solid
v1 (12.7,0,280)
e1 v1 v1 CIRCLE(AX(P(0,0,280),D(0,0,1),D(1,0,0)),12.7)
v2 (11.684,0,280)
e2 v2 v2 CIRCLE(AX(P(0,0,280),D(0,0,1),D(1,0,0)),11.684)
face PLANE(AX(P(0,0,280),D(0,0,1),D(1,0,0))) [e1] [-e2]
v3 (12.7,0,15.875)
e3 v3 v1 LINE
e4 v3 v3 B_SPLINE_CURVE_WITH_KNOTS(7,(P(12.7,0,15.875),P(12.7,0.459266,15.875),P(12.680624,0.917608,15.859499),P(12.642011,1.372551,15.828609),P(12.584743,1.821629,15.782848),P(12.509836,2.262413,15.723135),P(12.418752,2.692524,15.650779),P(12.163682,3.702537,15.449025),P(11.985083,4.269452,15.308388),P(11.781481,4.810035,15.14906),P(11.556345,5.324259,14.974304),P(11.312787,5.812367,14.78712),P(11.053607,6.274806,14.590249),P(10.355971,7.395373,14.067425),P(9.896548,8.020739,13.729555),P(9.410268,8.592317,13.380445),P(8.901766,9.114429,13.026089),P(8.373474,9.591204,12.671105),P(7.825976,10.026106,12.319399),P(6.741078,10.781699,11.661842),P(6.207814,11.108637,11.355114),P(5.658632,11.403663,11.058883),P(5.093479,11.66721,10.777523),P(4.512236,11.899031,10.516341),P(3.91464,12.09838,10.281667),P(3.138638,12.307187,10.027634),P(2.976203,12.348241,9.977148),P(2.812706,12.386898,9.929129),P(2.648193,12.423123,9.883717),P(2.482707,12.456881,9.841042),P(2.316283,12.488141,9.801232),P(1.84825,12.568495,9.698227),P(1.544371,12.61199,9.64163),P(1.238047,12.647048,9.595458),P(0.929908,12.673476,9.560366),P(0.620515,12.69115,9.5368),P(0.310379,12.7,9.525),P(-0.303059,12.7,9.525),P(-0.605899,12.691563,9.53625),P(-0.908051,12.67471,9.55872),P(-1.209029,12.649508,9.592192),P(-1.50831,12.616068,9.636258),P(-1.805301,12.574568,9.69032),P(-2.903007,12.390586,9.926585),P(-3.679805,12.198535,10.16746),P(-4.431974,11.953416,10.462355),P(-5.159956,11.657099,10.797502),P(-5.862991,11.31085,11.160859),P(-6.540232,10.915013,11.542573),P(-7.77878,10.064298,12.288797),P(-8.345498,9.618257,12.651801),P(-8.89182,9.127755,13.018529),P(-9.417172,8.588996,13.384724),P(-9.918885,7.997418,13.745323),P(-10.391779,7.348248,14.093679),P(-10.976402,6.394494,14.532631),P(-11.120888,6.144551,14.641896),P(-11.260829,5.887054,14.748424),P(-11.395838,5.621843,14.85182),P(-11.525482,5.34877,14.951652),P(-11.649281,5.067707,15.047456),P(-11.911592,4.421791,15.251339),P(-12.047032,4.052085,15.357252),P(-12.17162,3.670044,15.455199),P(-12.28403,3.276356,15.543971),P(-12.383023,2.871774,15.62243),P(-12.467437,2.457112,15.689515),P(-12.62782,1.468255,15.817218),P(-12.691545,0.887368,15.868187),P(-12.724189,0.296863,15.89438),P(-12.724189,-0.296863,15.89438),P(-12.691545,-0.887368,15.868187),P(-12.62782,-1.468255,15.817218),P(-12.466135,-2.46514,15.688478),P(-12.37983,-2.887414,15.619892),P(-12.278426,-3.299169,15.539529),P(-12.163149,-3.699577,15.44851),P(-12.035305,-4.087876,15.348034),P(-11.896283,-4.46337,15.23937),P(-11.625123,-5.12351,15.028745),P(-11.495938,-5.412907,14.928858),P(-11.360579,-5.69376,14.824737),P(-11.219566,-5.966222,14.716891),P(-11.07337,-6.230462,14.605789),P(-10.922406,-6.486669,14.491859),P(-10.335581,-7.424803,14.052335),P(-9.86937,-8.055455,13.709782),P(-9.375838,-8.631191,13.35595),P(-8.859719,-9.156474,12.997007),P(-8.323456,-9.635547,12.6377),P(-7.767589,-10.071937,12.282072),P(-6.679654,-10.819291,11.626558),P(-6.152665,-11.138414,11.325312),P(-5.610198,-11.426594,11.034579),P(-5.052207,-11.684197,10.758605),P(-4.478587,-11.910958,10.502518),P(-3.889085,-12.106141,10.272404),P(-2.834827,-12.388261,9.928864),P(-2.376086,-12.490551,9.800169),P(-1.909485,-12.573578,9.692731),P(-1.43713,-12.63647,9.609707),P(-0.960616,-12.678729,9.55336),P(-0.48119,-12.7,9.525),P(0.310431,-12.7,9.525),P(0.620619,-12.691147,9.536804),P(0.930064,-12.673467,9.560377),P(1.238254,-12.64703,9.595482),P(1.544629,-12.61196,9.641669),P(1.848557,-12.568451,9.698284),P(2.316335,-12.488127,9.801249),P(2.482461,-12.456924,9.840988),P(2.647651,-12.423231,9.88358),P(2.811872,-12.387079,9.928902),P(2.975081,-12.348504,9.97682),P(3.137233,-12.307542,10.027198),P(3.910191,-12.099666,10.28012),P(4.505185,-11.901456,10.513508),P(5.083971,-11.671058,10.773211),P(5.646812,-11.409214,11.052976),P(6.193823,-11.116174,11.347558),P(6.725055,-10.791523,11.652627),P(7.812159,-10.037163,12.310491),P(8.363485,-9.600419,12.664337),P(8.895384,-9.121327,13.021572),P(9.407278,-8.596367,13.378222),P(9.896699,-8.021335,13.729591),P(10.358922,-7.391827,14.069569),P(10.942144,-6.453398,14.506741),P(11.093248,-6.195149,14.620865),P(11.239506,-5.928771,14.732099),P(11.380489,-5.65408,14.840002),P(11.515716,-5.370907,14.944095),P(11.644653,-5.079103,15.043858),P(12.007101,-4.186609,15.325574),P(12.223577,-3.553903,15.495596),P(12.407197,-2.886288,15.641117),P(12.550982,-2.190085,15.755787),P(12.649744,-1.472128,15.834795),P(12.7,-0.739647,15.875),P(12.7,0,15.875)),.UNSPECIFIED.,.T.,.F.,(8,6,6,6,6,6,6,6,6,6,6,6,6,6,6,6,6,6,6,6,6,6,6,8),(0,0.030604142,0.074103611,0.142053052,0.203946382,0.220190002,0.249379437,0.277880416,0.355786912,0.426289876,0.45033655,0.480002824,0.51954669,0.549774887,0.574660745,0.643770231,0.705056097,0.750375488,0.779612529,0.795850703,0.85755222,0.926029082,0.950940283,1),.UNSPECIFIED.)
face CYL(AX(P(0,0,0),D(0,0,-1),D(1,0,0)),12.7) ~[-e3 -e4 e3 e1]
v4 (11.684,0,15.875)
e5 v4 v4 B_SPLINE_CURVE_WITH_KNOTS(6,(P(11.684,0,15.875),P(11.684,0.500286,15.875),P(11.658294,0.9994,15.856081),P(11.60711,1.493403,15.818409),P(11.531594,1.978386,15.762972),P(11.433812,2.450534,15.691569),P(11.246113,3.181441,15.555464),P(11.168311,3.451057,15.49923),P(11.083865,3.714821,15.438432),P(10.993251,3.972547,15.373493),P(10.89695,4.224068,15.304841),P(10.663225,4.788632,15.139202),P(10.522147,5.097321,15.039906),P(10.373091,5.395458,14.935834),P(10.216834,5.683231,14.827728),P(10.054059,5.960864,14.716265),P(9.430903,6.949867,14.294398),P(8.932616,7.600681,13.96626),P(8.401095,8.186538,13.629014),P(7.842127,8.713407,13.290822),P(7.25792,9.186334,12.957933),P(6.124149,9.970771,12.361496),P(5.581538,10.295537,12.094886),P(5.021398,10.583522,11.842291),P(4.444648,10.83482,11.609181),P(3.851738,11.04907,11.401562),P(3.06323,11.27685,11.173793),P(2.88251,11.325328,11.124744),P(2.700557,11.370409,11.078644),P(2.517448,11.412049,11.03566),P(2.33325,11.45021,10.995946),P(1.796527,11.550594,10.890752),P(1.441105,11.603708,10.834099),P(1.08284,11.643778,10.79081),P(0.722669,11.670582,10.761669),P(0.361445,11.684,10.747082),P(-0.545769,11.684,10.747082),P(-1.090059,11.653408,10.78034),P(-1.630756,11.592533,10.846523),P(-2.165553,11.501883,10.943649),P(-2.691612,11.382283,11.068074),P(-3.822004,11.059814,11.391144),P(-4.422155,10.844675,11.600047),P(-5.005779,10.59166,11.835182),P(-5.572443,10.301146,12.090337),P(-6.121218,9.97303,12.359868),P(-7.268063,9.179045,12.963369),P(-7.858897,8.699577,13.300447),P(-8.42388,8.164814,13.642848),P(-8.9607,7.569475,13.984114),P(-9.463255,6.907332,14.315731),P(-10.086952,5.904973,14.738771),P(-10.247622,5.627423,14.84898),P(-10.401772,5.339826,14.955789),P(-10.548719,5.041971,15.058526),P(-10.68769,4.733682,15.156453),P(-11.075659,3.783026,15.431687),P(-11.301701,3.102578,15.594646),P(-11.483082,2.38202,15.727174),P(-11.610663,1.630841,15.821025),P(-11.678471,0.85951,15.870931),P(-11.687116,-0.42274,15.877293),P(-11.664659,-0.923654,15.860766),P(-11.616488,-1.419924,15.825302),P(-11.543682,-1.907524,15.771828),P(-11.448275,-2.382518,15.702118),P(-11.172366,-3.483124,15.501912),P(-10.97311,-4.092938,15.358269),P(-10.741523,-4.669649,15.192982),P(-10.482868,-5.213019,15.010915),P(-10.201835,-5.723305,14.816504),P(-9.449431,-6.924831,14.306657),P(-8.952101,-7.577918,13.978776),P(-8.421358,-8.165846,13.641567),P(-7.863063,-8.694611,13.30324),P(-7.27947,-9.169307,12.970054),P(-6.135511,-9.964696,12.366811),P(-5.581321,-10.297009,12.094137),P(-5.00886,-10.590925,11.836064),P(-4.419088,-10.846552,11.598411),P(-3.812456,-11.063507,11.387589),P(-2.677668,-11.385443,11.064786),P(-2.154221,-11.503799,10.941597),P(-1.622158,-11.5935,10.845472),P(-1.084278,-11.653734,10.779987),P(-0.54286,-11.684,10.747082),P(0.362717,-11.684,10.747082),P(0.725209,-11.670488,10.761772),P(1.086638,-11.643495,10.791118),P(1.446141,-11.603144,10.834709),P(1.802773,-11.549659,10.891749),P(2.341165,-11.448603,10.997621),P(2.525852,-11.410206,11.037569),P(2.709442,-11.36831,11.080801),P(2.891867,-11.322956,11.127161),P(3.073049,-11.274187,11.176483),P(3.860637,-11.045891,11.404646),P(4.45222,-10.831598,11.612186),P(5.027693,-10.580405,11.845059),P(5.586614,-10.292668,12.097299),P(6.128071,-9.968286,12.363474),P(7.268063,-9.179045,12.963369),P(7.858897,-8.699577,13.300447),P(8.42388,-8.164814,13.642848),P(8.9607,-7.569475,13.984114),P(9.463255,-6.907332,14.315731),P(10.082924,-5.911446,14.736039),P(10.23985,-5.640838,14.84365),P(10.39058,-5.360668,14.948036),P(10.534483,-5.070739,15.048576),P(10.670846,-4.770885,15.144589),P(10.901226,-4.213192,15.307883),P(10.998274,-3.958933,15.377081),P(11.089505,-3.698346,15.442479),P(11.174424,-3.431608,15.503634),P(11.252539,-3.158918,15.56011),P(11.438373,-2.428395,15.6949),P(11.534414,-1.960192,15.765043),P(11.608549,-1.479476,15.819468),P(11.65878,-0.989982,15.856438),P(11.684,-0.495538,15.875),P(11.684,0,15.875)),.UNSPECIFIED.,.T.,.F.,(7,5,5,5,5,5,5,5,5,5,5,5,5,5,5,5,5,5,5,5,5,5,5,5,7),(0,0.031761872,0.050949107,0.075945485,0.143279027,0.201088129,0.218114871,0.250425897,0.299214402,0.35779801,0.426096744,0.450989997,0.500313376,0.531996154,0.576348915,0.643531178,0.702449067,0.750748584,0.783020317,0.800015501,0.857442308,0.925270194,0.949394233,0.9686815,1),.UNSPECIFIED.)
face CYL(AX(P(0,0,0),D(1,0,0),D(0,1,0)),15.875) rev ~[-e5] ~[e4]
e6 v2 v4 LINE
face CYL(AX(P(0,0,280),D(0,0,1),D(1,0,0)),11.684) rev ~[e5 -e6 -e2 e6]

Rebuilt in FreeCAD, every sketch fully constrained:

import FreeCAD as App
import Part
import Sketcher
from FreeCAD import Vector
Q = App.Units.Quantity

doc = App.newDocument("Part")
body = doc.addObject("PartDesign::Body", "Body")

sketch1 = body.newObject("Sketcher::SketchObject", "Sketch")
sketch1.AttachmentSupport = (doc.getObject("XY_Plane"), [""])
sketch1.MapMode = "FlatFace"
sketch1.addGeometry(Part.Circle(Vector(0, 0, 0), Vector(0, 0, 1), 12.7), False)
sketch1.addConstraint([
    Sketcher.Constraint("Coincident", 0, 3, -1, 1),
    Sketcher.Constraint("Diameter", 0, Q("1 in")),
])
pad1 = body.newObject("PartDesign::Pad", "Pad")
pad1.Profile = sketch1
pad1.Length = 280

sketch2 = body.newObject("Sketcher::SketchObject", "Sketch001")
sketch2.AttachmentSupport = (doc.getObject("YZ_Plane"), [""])
sketch2.MapMode = "FlatFace"
sketch2.addGeometry(Part.Circle(Vector(0, 0, 0), Vector(0, 0, 1), 15.875), False)
sketch2.addConstraint([
    Sketcher.Constraint("Coincident", 0, 3, -1, 1),
    Sketcher.Constraint("Diameter", 0, Q("1.25 in")),
])
pocket1 = body.newObject("PartDesign::Pocket", "Pocket")
pocket1.Profile = sketch2
pocket1.Length = 100
pocket1.Midplane = True

sketch3 = body.newObject("Sketcher::SketchObject", "Sketch002")
sketch3.AttachmentSupport = (doc.getObject("XY_Plane"), [""])
sketch3.MapMode = "FlatFace"
sketch3.AttachmentOffset = App.Placement(Vector(0, 0, 280), App.Rotation())
sketch3.addGeometry(Part.Circle(Vector(0, 0, 0), Vector(0, 0, 1), 11.684), False)
sketch3.addConstraint([
    Sketcher.Constraint("Coincident", 0, 3, -1, 1),
    Sketcher.Constraint("Diameter", 0, Q("0.92 in")),
])
pocket2 = body.newObject("PartDesign::Pocket", "Pocket001")
pocket2.Profile = sketch3
pocket2.Type = "ThroughAll"

doc.recompute()
